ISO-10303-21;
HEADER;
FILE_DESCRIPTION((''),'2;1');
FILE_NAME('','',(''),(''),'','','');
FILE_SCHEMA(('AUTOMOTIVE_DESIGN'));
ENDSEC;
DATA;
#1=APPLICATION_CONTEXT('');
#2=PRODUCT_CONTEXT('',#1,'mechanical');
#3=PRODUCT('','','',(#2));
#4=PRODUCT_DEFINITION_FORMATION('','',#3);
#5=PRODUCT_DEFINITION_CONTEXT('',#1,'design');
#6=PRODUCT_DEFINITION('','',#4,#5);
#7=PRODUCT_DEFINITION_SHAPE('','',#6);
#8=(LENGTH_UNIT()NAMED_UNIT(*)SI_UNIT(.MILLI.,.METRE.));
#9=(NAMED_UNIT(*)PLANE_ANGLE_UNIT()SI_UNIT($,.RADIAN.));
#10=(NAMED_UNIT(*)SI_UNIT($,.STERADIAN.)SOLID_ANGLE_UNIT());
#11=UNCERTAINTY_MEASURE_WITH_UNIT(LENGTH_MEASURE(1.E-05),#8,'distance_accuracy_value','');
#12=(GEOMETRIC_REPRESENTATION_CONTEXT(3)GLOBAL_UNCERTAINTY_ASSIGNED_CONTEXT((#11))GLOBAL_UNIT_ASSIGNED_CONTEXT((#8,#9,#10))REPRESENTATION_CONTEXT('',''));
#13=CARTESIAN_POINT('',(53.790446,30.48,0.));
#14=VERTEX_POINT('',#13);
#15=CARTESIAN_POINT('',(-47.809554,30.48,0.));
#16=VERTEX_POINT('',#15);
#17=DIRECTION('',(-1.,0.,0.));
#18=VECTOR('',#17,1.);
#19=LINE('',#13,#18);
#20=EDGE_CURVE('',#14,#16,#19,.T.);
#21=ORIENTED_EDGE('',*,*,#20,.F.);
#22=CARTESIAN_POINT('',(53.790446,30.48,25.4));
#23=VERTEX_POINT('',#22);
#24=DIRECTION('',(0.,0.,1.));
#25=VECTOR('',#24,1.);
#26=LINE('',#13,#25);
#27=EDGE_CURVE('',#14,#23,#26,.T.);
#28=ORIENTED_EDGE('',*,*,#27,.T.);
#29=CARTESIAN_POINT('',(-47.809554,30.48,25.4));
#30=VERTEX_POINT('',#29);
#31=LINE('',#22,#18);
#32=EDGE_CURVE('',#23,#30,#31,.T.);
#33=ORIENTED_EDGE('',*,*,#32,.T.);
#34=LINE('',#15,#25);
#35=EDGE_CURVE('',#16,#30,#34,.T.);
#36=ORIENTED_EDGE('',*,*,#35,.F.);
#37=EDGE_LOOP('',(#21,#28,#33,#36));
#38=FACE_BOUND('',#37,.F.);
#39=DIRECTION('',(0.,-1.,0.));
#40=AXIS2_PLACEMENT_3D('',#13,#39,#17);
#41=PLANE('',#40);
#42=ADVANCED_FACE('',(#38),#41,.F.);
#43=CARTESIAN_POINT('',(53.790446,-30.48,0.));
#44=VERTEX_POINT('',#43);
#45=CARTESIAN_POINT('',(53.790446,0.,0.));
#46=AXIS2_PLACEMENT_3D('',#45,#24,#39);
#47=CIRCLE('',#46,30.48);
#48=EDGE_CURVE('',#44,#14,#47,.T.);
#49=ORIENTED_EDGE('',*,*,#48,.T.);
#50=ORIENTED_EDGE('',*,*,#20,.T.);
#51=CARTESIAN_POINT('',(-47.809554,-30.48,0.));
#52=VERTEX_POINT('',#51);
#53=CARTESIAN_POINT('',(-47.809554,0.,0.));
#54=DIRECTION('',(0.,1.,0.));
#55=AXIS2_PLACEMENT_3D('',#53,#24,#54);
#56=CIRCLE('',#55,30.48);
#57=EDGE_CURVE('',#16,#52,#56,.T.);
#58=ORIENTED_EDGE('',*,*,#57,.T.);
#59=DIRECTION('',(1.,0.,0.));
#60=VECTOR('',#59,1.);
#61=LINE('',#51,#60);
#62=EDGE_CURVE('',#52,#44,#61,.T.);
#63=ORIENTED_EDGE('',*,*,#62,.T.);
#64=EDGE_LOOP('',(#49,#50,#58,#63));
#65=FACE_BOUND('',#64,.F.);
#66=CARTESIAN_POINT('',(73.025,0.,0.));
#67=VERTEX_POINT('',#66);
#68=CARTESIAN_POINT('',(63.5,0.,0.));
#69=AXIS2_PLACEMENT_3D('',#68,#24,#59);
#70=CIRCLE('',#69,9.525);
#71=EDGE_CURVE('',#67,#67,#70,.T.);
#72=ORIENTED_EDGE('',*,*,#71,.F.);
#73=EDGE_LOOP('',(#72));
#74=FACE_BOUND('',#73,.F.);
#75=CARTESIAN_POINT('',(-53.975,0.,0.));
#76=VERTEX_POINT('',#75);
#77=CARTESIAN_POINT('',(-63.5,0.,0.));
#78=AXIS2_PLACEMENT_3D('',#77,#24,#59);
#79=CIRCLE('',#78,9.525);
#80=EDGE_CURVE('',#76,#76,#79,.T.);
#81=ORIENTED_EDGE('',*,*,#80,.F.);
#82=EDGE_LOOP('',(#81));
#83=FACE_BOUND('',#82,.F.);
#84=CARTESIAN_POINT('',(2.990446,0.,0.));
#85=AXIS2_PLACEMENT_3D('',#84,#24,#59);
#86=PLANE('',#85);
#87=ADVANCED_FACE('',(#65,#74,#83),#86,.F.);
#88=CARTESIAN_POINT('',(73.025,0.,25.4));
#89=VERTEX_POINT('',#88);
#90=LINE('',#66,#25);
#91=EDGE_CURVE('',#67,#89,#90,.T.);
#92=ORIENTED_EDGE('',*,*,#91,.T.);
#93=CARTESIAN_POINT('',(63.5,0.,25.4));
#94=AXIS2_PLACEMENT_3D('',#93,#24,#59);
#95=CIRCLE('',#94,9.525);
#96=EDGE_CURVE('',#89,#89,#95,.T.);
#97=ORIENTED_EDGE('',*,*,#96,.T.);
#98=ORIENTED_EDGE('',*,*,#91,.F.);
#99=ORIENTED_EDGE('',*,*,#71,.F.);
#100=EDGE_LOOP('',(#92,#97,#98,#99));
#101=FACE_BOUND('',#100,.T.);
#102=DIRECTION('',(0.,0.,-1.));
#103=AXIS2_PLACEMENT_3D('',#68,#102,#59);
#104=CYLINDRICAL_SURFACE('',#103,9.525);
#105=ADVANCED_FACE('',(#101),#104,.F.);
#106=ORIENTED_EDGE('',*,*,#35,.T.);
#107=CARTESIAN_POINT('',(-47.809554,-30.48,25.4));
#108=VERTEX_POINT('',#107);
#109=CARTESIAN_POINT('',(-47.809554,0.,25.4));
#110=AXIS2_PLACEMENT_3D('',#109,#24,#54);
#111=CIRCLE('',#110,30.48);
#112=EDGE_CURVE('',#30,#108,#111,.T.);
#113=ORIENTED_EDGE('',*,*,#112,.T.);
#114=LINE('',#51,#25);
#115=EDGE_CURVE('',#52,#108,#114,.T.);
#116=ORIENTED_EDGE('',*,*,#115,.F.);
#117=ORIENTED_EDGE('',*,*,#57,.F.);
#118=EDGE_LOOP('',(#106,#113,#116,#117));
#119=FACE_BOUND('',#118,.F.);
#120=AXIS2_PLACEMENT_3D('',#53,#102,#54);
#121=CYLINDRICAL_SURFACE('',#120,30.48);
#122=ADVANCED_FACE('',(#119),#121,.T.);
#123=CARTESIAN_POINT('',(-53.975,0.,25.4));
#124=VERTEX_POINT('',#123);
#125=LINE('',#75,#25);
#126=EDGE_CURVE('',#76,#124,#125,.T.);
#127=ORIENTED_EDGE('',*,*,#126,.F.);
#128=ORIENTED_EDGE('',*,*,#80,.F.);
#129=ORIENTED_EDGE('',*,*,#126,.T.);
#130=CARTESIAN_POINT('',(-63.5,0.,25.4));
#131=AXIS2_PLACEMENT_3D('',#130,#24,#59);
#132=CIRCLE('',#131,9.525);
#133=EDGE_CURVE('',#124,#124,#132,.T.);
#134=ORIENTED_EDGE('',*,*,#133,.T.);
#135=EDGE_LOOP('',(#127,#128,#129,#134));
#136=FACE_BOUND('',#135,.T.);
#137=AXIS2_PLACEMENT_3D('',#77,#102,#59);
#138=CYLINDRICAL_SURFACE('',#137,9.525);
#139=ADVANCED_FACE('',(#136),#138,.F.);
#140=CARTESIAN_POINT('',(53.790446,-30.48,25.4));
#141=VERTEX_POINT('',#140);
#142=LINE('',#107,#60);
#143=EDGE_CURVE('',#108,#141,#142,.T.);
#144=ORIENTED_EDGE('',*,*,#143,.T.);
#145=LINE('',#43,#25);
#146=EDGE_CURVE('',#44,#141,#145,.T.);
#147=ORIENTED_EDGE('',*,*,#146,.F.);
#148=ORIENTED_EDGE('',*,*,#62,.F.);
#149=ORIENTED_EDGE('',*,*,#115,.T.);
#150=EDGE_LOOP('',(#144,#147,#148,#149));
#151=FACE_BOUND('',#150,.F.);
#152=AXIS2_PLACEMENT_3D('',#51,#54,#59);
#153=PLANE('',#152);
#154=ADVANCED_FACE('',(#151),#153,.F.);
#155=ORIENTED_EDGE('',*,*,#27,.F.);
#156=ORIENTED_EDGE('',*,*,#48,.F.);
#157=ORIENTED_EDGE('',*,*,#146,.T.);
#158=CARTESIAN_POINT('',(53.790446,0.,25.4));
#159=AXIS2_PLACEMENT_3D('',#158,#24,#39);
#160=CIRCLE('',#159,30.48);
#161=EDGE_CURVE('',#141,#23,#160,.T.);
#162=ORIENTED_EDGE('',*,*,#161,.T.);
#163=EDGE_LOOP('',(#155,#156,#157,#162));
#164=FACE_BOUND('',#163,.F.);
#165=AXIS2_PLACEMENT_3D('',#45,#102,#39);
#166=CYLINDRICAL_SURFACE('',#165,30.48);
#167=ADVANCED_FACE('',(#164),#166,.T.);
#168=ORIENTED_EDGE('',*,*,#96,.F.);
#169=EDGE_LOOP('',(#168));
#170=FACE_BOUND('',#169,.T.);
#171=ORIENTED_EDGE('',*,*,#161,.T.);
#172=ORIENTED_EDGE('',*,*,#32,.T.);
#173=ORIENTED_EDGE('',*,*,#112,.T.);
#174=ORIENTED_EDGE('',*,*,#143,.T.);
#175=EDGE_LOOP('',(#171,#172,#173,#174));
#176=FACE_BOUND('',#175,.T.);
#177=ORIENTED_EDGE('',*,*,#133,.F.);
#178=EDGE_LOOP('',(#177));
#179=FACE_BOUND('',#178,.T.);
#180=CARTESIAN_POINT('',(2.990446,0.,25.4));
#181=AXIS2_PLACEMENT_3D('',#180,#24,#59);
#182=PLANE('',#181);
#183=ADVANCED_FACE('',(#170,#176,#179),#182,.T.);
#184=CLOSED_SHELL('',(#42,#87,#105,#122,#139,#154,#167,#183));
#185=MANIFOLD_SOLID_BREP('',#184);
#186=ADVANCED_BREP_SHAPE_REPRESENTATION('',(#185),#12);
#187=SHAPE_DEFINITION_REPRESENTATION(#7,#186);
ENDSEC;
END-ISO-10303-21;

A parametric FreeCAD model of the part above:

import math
import FreeCAD as App
import Part
import Sketcher
from FreeCAD import Vector
Q = App.Units.Quantity

doc = App.newDocument("Part")
body = doc.addObject("PartDesign::Body", "Body")

# Sketch on XY plane
sketch1 = body.newObject("Sketcher::SketchObject", "Sketch")
sketch1.AttachmentSupport = (doc.getObject("XY_Plane"), [""])
sketch1.MapMode = "FlatFace"
sketch1.addGeometry(Part.ArcOfCircle(Part.Circle(Vector(54, 0, 0), Vector(0, 0, 1), 30), math.radians(-90), math.radians(90)), False)
sketch1.addGeometry(Part.LineSegment(Vector(54, 30, 0), Vector(-48, 30, 0)), False)
sketch1.addGeometry(Part.ArcOfCircle(Part.Circle(Vector(-48, 0, 0), Vector(0, 0, 1), 30), math.radians(90), math.radians(270)), False)
sketch1.addGeometry(Part.LineSegment(Vector(-48, -30, 0), Vector(54, -30, 0)), False)
sketch1.addGeometry(Part.Circle(Vector(-64, 0, 0), Vector(0, 0, 1), 10), False)
sketch1.addGeometry(Part.Circle(Vector(64, 0, 0), Vector(0, 0, 1), 10), False)
sketch1.addConstraint(Sketcher.Constraint("Tangent", 0, 2, 1, 1))
sketch1.addConstraint(Sketcher.Constraint("Tangent", 1, 2, 2, 1))
sketch1.addConstraint(Sketcher.Constraint("Tangent", 2, 2, 3, 1))
sketch1.addConstraint(Sketcher.Constraint("Tangent", 3, 2, 0, 1))
sketch1.addConstraint(Sketcher.Constraint("Horizontal", 1))
sketch1.addConstraint(Sketcher.Constraint("Horizontal", 3))
sketch1.addConstraint(Sketcher.Constraint("Equal", 4, 5))
sketch1.addConstraint(Sketcher.Constraint("Symmetric", 4, 3, 5, 3, -1, 1))
sketch1.addConstraint(Sketcher.Constraint("PointOnObject", 0, 3, -1))
sketch1.addConstraint(Sketcher.Constraint("PointOnObject", 4, 3, -1))
sketch1.addConstraint(Sketcher.Constraint("Radius", 0, Q("1.2 in")))
sketch1.addConstraint(Sketcher.Constraint("Diameter", 4, Q("0.75 in")))
sketch1.addConstraint(Sketcher.Constraint("DistanceX", 1, 2, 1, 1, Q("4 in")))
sketch1.addConstraint(Sketcher.Constraint("DistanceX", 4, 3, 5, 3, Q("5 in")))
sketch1.addConstraint(Sketcher.Constraint("DistanceX", -1, 1, 0, 3, 53.790446))
pad1 = body.newObject("PartDesign::Pad", "Pad")
pad1.Profile = sketch1
pad1.Length = Q("1 in")

doc.recompute()
